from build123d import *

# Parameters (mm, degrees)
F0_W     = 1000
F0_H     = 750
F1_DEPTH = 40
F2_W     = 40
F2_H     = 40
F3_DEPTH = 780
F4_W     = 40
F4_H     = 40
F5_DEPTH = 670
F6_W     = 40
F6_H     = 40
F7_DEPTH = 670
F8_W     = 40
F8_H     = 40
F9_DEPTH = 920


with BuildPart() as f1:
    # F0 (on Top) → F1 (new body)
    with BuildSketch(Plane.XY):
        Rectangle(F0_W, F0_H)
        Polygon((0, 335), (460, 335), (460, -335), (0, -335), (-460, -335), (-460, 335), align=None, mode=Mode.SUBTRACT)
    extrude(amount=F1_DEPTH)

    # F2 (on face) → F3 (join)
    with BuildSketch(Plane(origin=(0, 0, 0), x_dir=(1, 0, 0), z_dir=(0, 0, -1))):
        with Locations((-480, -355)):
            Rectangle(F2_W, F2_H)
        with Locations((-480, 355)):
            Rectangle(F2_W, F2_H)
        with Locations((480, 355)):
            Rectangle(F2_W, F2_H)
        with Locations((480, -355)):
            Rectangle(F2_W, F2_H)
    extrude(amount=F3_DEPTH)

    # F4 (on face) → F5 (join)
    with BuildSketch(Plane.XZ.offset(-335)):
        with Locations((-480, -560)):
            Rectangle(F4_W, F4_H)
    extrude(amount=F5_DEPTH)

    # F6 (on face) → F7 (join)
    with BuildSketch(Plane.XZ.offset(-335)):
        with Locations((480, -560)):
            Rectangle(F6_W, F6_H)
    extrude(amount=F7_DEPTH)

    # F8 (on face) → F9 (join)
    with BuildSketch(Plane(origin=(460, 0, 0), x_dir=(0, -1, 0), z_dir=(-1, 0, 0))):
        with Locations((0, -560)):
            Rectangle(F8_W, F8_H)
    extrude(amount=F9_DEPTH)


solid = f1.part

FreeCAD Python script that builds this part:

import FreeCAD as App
import Part
import Sketcher
Q = App.Units.Quantity

doc = App.newDocument("Part")
body = doc.addObject("PartDesign::Body", "Body")

# Sketch on XY plane
sketch1 = body.newObject("Sketcher::SketchObject", "Sketch")
sketch1.AttachmentSupport = (doc.getObject("XY_Plane"), [""])
sketch1.MapMode = "FlatFace"
sketch1.addGeometry(Part.LineSegment(App.Vector(-500, 375, 0), App.Vector(-500, -375, 0)), False)
sketch1.addGeometry(Part.LineSegment(App.Vector(-500, -375, 0), App.Vector(500, -375, 0)), False)
sketch1.addGeometry(Part.LineSegment(App.Vector(500, -375, 0), App.Vector(500, 375, 0)), False)
sketch1.addGeometry(Part.LineSegment(App.Vector(500, 375, 0), App.Vector(-500, 375, 0)), False)
sketch1.addGeometry(Part.LineSegment(App.Vector(-460, 335, 0), App.Vector(460, 335, 0)), False)
sketch1.addGeometry(Part.LineSegment(App.Vector(460, 335, 0), App.Vector(460, -335, 0)), False)
sketch1.addGeometry(Part.LineSegment(App.Vector(460, -335, 0), App.Vector(-460, -335, 0)), False)
sketch1.addGeometry(Part.LineSegment(App.Vector(-460, -335, 0), App.Vector(-460, 335, 0)), False)
sketch1.addConstraint(Sketcher.Constraint("Coincident", 0, 2, 1, 1))
sketch1.addConstraint(Sketcher.Constraint("Coincident", 1, 2, 2, 1))
sketch1.addConstraint(Sketcher.Constraint("Coincident", 2, 2, 3, 1))
sketch1.addConstraint(Sketcher.Constraint("Coincident", 3, 2, 0, 1))
sketch1.addConstraint(Sketcher.Constraint("Coincident", 4, 2, 5, 1))
sketch1.addConstraint(Sketcher.Constraint("Coincident", 5, 2, 6, 1))
sketch1.addConstraint(Sketcher.Constraint("Coincident", 6, 2, 7, 1))
sketch1.addConstraint(Sketcher.Constraint("Coincident", 7, 2, 4, 1))
sketch1.addConstraint(Sketcher.Constraint("Vertical", 0))
sketch1.addConstraint(Sketcher.Constraint("Horizontal", 1))
sketch1.addConstraint(Sketcher.Constraint("Vertical", 2))
sketch1.addConstraint(Sketcher.Constraint("Horizontal", 3))
sketch1.addConstraint(Sketcher.Constraint("Horizontal", 4))
sketch1.addConstraint(Sketcher.Constraint("Vertical", 5))
sketch1.addConstraint(Sketcher.Constraint("Horizontal", 6))
sketch1.addConstraint(Sketcher.Constraint("Vertical", 7))
sketch1.addConstraint(Sketcher.Constraint("Symmetric", 0, 2, 2, 2, -1, 1))
sketch1.addConstraint(Sketcher.Constraint("Symmetric", 4, 2, 6, 2, -1, 1))
sketch1.addConstraint(Sketcher.Constraint("DistanceX", 1, 1, 1, 2, Q("1000 mm")))
sketch1.addConstraint(Sketcher.Constraint("DistanceX", 4, 1, 4, 2, Q("920 mm")))
sketch1.addConstraint(Sketcher.Constraint("DistanceY", 0, 2, 0, 1, Q("750 mm")))
sketch1.addConstraint(Sketcher.Constraint("DistanceY", 5, 2, 5, 1, Q("670 mm")))
pad1 = body.newObject("PartDesign::Pad", "Pad")
pad1.Profile = sketch1
pad1.Length = 40

# Sketch on XY plane
sketch2 = body.newObject("Sketcher::SketchObject", "Sketch001")
sketch2.AttachmentSupport = (doc.getObject("XY_Plane"), [""])
sketch2.MapMode = "FlatFace"
sketch2.addGeometry(Part.LineSegment(App.Vector(-500, 335, 0), App.Vector(-500, 375, 0)), False)
sketch2.addGeometry(Part.LineSegment(App.Vector(-500, 375, 0), App.Vector(-460, 375, 0)), False)
sketch2.addGeometry(Part.LineSegment(App.Vector(-460, 375, 0), App.Vector(-460, 335, 0)), False)
sketch2.addGeometry(Part.LineSegment(App.Vector(-460, 335, 0), App.Vector(-500, 335, 0)), False)
sketch2.addGeometry(Part.LineSegment(App.Vector(-500, -375, 0), App.Vector(-500, -335, 0)), False)
sketch2.addGeometry(Part.LineSegment(App.Vector(-500, -335, 0), App.Vector(-460, -335, 0)), False)
sketch2.addGeometry(Part.LineSegment(App.Vector(-460, -335, 0), App.Vector(-460, -375, 0)), False)
sketch2.addGeometry(Part.LineSegment(App.Vector(-460, -375, 0), App.Vector(-500, -375, 0)), False)
sketch2.addGeometry(Part.LineSegment(App.Vector(460, -375, 0), App.Vector(460, -335, 0)), False)
sketch2.addGeometry(Part.LineSegment(App.Vector(460, -335, 0), App.Vector(500, -335, 0)), False)
sketch2.addGeometry(Part.LineSegment(App.Vector(500, -335, 0), App.Vector(500, -375, 0)), False)
sketch2.addGeometry(Part.LineSegment(App.Vector(500, -375, 0), App.Vector(460, -375, 0)), False)
sketch2.addGeometry(Part.LineSegment(App.Vector(460, 335, 0), App.Vector(460, 375, 0)), False)
sketch2.addGeometry(Part.LineSegment(App.Vector(460, 375, 0), App.Vector(500, 375, 0)), False)
sketch2.addGeometry(Part.LineSegment(App.Vector(500, 375, 0), App.Vector(500, 335, 0)), False)
sketch2.addGeometry(Part.LineSegment(App.Vector(500, 335, 0), App.Vector(460, 335, 0)), False)
sketch2.addConstraint(Sketcher.Constraint("Coincident", 0, 2, 1, 1))
sketch2.addConstraint(Sketcher.Constraint("Coincident", 1, 2, 2, 1))
sketch2.addConstraint(Sketcher.Constraint("Coincident", 2, 2, 3, 1))
sketch2.addConstraint(Sketcher.Constraint("Coincident", 3, 2, 0, 1))
sketch2.addConstraint(Sketcher.Constraint("Coincident", 4, 2, 5, 1))
sketch2.addConstraint(Sketcher.Constraint("Coincident", 5, 2, 6, 1))
sketch2.addConstraint(Sketcher.Constraint("Coincident", 6, 2, 7, 1))
sketch2.addConstraint(Sketcher.Constraint("Coincident", 7, 2, 4, 1))
sketch2.addConstraint(Sketcher.Constraint("Coincident", 8, 2, 9, 1))
sketch2.addConstraint(Sketcher.Constraint("Coincident", 9, 2, 10, 1))
sketch2.addConstraint(Sketcher.Constraint("Coincident", 10, 2, 11, 1))
sketch2.addConstraint(Sketcher.Constraint("Coincident", 11, 2, 8, 1))
sketch2.addConstraint(Sketcher.Constraint("Coincident", 12, 2, 13, 1))
sketch2.addConstraint(Sketcher.Constraint("Coincident", 13, 2, 14, 1))
sketch2.addConstraint(Sketcher.Constraint("Coincident", 14, 2, 15, 1))
sketch2.addConstraint(Sketcher.Constraint("Coincident", 15, 2, 12, 1))
sketch2.addConstraint(Sketcher.Constraint("Vertical", 0))
sketch2.addConstraint(Sketcher.Constraint("Horizontal", 1))
sketch2.addConstraint(Sketcher.Constraint("Vertical", 2))
sketch2.addConstraint(Sketcher.Constraint("Horizontal", 3))
sketch2.addConstraint(Sketcher.Constraint("Vertical", 4))
sketch2.addConstraint(Sketcher.Constraint("Horizontal", 5))
sketch2.addConstraint(Sketcher.Constraint("Vertical", 6))
sketch2.addConstraint(Sketcher.Constraint("Horizontal", 7))
sketch2.addConstraint(Sketcher.Constraint("Vertical", 8))
sketch2.addConstraint(Sketcher.Constraint("Horizontal", 9))
sketch2.addConstraint(Sketcher.Constraint("Vertical", 10))
sketch2.addConstraint(Sketcher.Constraint("Horizontal", 11))
sketch2.addConstraint(Sketcher.Constraint("Vertical", 12))
sketch2.addConstraint(Sketcher.Constraint("Horizontal", 13))
sketch2.addConstraint(Sketcher.Constraint("Vertical", 14))
sketch2.addConstraint(Sketcher.Constraint("Horizontal", 15))
sketch2.addConstraint(Sketcher.Constraint("Symmetric", 2, 2, 8, 2, -1, 1))
sketch2.addConstraint(Sketcher.Constraint("Symmetric", 0, 2, 10, 2, -1, 1))
sketch2.addConstraint(Sketcher.Constraint("Symmetric", 6, 2, 12, 2, -1, 1))
sketch2.addConstraint(Sketcher.Constraint("Symmetric", 4, 2, 14, 2, -1, 1))
sketch2.addConstraint(Sketcher.Constraint("Symmetric", 5, 2, 8, 2, -2))
sketch2.addConstraint(Sketcher.Constraint("Symmetric", 7, 2, 10, 2, -2))
sketch2.addConstraint(Sketcher.Constraint("Equal", 15, 0))
sketch2.addConstraint(Sketcher.Constraint("DistanceX", 1, 1, 1, 2, Q("40 mm")))
sketch2.addConstraint(Sketcher.Constraint("DistanceX", 0, 2, -1, 1, Q("500 mm")))
sketch2.addConstraint(Sketcher.Constraint("DistanceY", -1, 1, 0, 2, Q("375 mm")))
pad2 = body.newObject("PartDesign::Pad", "Pad001")
pad2.Profile = sketch2
pad2.Length = 780
pad2.Reversed = True

# Sketch on XZ plane
sketch3 = body.newObject("Sketcher::SketchObject", "Sketch002")
sketch3.AttachmentSupport = (doc.getObject("XZ_Plane"), [""])
sketch3.MapMode = "FlatFace"
sketch3.AttachmentOffset = App.Placement(App.Vector(0, 0, -335), App.Rotation())
sketch3.addGeometry(Part.LineSegment(App.Vector(-500, -540, 0), App.Vector(-500, -580, 0)), False)
sketch3.addGeometry(Part.LineSegment(App.Vector(-500, -580, 0), App.Vector(-460, -580, 0)), False)
sketch3.addGeometry(Part.LineSegment(App.Vector(-460, -580, 0), App.Vector(-460, -540, 0)), False)
sketch3.addGeometry(Part.LineSegment(App.Vector(-460, -540, 0), App.Vector(-500, -540, 0)), False)
sketch3.addConstraint(Sketcher.Constraint("Coincident", 0, 2, 1, 1))
sketch3.addConstraint(Sketcher.Constraint("Coincident", 1, 2, 2, 1))
sketch3.addConstraint(Sketcher.Constraint("Coincident", 2, 2, 3, 1))
sketch3.addConstraint(Sketcher.Constraint("Coincident", 3, 2, 0, 1))
sketch3.addConstraint(Sketcher.Constraint("Vertical", 0))
sketch3.addConstraint(Sketcher.Constraint("Horizontal", 1))
sketch3.addConstraint(Sketcher.Constraint("Vertical", 2))
sketch3.addConstraint(Sketcher.Constraint("Horizontal", 3))
sketch3.addConstraint(Sketcher.Constraint("Equal", 3, 0))
sketch3.addConstraint(Sketcher.Constraint("DistanceX", 1, 1, 1, 2, Q("40 mm")))
sketch3.addConstraint(Sketcher.Constraint("DistanceX", 0, 2, -1, 1, Q("500 mm")))
sketch3.addConstraint(Sketcher.Constraint("DistanceY", 0, 2, -1, 1, Q("580 mm")))
pad3 = body.newObject("PartDesign::Pad", "Pad002")
pad3.Profile = sketch3
pad3.Length = 670

# Sketch on XZ plane
sketch4 = body.newObject("Sketcher::SketchObject", "Sketch003")
sketch4.AttachmentSupport = (doc.getObject("XZ_Plane"), [""])
sketch4.MapMode = "FlatFace"
sketch4.AttachmentOffset = App.Placement(App.Vector(0, 0, -335), App.Rotation())
sketch4.addGeometry(Part.LineSegment(App.Vector(460, -540, 0), App.Vector(460, -580, 0)), False)
sketch4.addGeometry(Part.LineSegment(App.Vector(460, -580, 0), App.Vector(500, -580, 0)), False)
sketch4.addGeometry(Part.LineSegment(App.Vector(500, -580, 0), App.Vector(500, -540, 0)), False)
sketch4.addGeometry(Part.LineSegment(App.Vector(500, -540, 0), App.Vector(460, -540, 0)), False)
sketch4.addConstraint(Sketcher.Constraint("Coincident", 0, 2, 1, 1))
sketch4.addConstraint(Sketcher.Constraint("Coincident", 1, 2, 2, 1))
sketch4.addConstraint(Sketcher.Constraint("Coincident", 2, 2, 3, 1))
sketch4.addConstraint(Sketcher.Constraint("Coincident", 3, 2, 0, 1))
sketch4.addConstraint(Sketcher.Constraint("Vertical", 0))
sketch4.addConstraint(Sketcher.Constraint("Horizontal", 1))
sketch4.addConstraint(Sketcher.Constraint("Vertical", 2))
sketch4.addConstraint(Sketcher.Constraint("Horizontal", 3))
sketch4.addConstraint(Sketcher.Constraint("Equal", 3, 0))
sketch4.addConstraint(Sketcher.Constraint("DistanceX", 1, 1, 1, 2, Q("40 mm")))
sketch4.addConstraint(Sketcher.Constraint("DistanceX", -1, 1, 0, 2, Q("460 mm")))
sketch4.addConstraint(Sketcher.Constraint("DistanceY", 0, 2, -1, 1, Q("580 mm")))
pad4 = body.newObject("PartDesign::Pad", "Pad003")
pad4.Profile = sketch4
pad4.Length = 670

# Sketch on YZ plane
sketch5 = body.newObject("Sketcher::SketchObject", "Sketch004")
sketch5.AttachmentSupport = (doc.getObject("YZ_Plane"), [""])
sketch5.MapMode = "FlatFace"
sketch5.AttachmentOffset = App.Placement(App.Vector(0, 0, 460), App.Rotation())
sketch5.addGeometry(Part.LineSegment(App.Vector(20, -540, 0), App.Vector(20, -580, 0)), False)
sketch5.addGeometry(Part.LineSegment(App.Vector(20, -580, 0), App.Vector(-20, -580, 0)), False)
sketch5.addGeometry(Part.LineSegment(App.Vector(-20, -580, 0), App.Vector(-20, -540, 0)), False)
sketch5.addGeometry(Part.LineSegment(App.Vector(-20, -540, 0), App.Vector(20, -540, 0)), False)
sketch5.addConstraint(Sketcher.Constraint("Coincident", 0, 2, 1, 1))
sketch5.addConstraint(Sketcher.Constraint("Coincident", 1, 2, 2, 1))
sketch5.addConstraint(Sketcher.Constraint("Coincident", 2, 2, 3, 1))
sketch5.addConstraint(Sketcher.Constraint("Coincident", 3, 2, 0, 1))
sketch5.addConstraint(Sketcher.Constraint("Vertical", 0))
sketch5.addConstraint(Sketcher.Constraint("Horizontal", 1))
sketch5.addConstraint(Sketcher.Constraint("Vertical", 2))
sketch5.addConstraint(Sketcher.Constraint("Horizontal", 3))
sketch5.addConstraint(Sketcher.Constraint("Equal", 3, 0))
sketch5.addConstraint(Sketcher.Constraint("DistanceX", 1, 2, 1, 1, Q("40 mm")))
sketch5.addConstraint(Sketcher.Constraint("DistanceX", -1, 1, 0, 2, Q("20 mm")))
sketch5.addConstraint(Sketcher.Constraint("DistanceY", 0, 2, -1, 1, Q("580 mm")))
pad5 = body.newObject("PartDesign::Pad", "Pad004")
pad5.Profile = sketch5
pad5.Length = 920
pad5.Reversed = True

doc.recompute()
